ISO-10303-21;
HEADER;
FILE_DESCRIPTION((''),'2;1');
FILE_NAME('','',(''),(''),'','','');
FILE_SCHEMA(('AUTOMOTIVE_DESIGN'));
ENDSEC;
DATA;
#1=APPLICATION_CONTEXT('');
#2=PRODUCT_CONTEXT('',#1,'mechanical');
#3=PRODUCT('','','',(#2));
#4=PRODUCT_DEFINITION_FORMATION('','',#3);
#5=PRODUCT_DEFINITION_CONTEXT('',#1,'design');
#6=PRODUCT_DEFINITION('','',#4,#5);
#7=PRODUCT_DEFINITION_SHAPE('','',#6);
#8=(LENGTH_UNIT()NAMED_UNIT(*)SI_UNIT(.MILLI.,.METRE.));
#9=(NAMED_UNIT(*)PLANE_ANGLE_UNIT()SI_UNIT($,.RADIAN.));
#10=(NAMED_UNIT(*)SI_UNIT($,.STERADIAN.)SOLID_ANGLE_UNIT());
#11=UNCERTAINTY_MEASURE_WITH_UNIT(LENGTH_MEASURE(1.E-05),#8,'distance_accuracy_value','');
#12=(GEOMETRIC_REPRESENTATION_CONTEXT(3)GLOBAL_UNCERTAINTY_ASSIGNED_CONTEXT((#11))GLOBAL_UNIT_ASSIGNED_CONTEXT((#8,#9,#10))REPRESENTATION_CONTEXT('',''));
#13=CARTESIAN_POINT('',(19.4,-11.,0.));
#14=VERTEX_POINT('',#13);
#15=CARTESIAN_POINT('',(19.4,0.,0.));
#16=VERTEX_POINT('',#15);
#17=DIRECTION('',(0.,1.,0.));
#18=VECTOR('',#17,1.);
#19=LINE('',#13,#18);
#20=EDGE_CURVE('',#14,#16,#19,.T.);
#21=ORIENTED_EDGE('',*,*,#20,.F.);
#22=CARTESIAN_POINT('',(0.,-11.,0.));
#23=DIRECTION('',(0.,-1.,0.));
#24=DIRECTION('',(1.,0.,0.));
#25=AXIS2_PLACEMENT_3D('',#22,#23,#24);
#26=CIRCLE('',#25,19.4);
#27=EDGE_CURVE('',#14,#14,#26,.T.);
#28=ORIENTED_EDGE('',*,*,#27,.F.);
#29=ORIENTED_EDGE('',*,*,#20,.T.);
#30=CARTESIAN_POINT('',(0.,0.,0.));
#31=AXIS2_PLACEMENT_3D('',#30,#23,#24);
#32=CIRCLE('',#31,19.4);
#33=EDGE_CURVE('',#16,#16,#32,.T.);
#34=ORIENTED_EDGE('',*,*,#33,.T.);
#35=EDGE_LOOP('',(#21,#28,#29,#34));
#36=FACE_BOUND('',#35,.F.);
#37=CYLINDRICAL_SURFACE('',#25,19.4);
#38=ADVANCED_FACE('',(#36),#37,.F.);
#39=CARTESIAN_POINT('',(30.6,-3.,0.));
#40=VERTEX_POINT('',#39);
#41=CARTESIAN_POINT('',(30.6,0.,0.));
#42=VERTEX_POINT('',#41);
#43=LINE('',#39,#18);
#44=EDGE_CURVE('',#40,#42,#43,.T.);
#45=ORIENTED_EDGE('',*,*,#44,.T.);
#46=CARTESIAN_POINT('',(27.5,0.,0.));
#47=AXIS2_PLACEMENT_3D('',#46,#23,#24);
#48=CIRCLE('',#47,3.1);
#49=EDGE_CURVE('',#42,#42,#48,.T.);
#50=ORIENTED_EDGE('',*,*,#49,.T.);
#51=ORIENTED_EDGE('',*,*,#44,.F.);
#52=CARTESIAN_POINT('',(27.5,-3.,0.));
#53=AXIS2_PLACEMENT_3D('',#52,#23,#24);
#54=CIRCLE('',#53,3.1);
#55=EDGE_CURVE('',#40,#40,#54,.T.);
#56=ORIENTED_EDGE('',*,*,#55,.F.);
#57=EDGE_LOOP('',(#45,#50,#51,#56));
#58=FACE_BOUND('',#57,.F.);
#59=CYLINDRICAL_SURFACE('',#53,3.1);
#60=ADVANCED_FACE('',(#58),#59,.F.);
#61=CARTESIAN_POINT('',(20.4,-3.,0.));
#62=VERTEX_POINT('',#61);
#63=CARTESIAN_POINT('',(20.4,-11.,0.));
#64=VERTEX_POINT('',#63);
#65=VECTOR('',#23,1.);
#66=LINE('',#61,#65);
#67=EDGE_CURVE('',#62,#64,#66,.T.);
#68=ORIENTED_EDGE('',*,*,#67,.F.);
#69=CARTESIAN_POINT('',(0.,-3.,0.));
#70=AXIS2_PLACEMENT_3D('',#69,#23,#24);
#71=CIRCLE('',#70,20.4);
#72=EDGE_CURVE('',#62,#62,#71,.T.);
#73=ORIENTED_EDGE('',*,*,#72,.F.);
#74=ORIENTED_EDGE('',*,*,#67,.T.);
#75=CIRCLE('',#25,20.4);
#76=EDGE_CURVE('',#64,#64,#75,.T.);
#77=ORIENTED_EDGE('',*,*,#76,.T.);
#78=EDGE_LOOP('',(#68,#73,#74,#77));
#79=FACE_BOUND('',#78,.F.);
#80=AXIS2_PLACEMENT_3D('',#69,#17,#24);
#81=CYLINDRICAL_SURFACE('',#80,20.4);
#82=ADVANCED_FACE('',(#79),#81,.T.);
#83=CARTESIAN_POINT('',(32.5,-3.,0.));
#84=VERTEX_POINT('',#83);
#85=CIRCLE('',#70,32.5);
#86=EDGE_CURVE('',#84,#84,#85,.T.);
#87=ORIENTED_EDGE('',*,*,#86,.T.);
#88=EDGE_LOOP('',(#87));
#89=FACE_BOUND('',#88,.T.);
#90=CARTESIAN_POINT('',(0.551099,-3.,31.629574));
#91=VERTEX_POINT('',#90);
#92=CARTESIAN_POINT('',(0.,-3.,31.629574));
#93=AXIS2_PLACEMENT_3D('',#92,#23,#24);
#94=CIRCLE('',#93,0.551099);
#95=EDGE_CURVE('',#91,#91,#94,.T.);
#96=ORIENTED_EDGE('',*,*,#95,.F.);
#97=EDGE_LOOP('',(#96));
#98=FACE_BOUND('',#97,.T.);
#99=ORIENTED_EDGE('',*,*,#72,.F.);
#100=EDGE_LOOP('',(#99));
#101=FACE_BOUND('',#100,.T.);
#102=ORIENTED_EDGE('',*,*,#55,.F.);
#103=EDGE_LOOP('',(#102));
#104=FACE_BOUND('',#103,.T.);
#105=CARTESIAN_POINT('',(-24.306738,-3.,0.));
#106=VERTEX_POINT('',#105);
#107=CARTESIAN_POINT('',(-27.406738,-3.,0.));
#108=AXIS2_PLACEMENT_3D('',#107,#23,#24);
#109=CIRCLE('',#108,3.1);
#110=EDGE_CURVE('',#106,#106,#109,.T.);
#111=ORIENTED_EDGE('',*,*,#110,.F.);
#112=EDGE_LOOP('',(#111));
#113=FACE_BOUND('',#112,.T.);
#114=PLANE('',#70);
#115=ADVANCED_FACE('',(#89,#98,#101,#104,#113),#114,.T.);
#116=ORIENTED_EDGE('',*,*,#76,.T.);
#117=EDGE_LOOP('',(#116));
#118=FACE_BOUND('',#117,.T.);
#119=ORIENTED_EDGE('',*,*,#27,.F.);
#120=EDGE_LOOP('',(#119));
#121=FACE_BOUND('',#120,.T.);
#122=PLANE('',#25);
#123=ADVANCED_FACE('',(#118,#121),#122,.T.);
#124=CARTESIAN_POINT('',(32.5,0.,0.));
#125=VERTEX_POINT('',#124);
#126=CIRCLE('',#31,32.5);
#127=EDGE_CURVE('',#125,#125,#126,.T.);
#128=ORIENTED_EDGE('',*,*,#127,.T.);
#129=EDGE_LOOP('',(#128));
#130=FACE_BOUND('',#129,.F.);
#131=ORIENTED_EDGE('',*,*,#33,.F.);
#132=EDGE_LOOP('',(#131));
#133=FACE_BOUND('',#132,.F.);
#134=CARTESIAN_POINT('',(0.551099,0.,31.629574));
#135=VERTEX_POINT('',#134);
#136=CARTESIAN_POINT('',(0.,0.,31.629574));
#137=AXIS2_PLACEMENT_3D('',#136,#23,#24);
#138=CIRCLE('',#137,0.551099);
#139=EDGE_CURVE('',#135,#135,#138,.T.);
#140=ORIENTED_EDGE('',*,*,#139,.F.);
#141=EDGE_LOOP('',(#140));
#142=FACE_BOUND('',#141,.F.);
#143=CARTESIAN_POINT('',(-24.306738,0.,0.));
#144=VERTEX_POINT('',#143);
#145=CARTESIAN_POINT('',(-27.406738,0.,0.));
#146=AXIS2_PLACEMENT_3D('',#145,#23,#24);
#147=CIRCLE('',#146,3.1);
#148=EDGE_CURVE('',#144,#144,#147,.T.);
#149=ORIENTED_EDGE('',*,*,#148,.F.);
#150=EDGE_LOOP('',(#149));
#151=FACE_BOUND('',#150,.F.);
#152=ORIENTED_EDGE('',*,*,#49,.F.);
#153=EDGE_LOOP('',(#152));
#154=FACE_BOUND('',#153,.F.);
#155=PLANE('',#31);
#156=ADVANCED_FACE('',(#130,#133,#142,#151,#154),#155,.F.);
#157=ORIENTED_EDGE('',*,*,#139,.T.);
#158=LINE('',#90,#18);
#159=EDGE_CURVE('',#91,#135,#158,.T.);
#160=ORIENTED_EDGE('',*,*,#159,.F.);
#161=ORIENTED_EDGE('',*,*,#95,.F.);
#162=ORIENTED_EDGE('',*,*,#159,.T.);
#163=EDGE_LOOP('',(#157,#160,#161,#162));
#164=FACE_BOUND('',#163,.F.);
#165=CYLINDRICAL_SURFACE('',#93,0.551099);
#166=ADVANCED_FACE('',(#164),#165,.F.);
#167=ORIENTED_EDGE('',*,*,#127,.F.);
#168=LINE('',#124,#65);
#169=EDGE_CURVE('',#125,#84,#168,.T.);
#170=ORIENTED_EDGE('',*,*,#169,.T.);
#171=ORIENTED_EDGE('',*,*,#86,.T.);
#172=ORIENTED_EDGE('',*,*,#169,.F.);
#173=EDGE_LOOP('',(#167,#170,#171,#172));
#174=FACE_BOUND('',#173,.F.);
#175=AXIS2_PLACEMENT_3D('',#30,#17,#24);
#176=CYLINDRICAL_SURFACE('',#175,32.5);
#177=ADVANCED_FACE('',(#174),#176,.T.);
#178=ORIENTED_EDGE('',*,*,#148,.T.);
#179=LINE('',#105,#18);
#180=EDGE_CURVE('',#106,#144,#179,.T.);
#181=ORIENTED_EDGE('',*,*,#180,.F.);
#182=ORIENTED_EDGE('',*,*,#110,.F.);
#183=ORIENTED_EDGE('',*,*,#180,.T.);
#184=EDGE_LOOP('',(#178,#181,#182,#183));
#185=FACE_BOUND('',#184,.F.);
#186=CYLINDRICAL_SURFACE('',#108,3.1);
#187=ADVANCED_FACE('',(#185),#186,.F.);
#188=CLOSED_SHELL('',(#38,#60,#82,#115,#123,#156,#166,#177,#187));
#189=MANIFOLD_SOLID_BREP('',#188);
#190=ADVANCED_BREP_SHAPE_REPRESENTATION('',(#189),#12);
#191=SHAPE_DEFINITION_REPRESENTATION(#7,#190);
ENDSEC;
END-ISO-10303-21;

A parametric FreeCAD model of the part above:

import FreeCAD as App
import Part
import Sketcher
from FreeCAD import Vector

doc = App.newDocument("Part")
body = doc.addObject("PartDesign::Body", "Body")

# Sketch on XZ plane
sketch1 = doc.addObject("Sketcher::SketchObject", "Sketch")
body.addObject(sketch1)
sketch1.AttachmentSupport = (doc.XZ_Plane, [""])
sketch1.MapMode = "FlatFace"
sketch1.addGeometry(Part.Circle(Vector(0, 0, 0), Vector(0, 0, 1), 32), False)
sketch1.addConstraint(Sketcher.Constraint("Coincident", 0, 3, -1, 1))
sketch1.addConstraint(Sketcher.Constraint("Diameter", 0, 65.0))
pad1 = doc.addObject("PartDesign::Pad", "Pad")
body.addObject(pad1)
pad1.Profile = sketch1
pad1.Length = 3

# Sketch on XZ plane
sketch2 = doc.addObject("Sketcher::SketchObject", "Sketch001")
body.addObject(sketch2)
sketch2.AttachmentSupport = (doc.XZ_Plane, [""])
sketch2.MapMode = "FlatFace"
sketch2.AttachmentOffset = App.Placement(Vector(0, 0, 3), App.Rotation())
sketch2.addGeometry(Part.Circle(Vector(0, 0, 0), Vector(0, 0, 1), 20), False)
sketch2.addConstraint(Sketcher.Constraint("Coincident", 0, 3, -1, 1))
sketch2.addConstraint(Sketcher.Constraint("Diameter", 0, 40.8))
pad2 = doc.addObject("PartDesign::Pad", "Pad001")
body.addObject(pad2)
pad2.Profile = sketch2
pad2.Length = 8

# Sketch on XZ plane
sketch3 = doc.addObject("Sketcher::SketchObject", "Sketch002")
body.addObject(sketch3)
sketch3.AttachmentSupport = (doc.XZ_Plane, [""])
sketch3.MapMode = "FlatFace"
sketch3.AttachmentOffset = App.Placement(Vector(0, 0, 11), App.Rotation())
sketch3.addGeometry(Part.Circle(Vector(0, 0, 0), Vector(0, 0, 1), 19), False)
sketch3.addConstraint(Sketcher.Constraint("Coincident", 0, 3, -1, 1))
sketch3.addConstraint(Sketcher.Constraint("Diameter", 0, 38.8))
pocket1 = doc.addObject("PartDesign::Pocket", "Pocket")
body.addObject(pocket1)
pocket1.Profile = sketch3
pocket1.Type = "ThroughAll"

# Sketch on XZ plane
sketch4 = doc.addObject("Sketcher::SketchObject", "Sketch003")
body.addObject(sketch4)
sketch4.AttachmentSupport = (doc.XZ_Plane, [""])
sketch4.MapMode = "FlatFace"
sketch4.AttachmentOffset = App.Placement(Vector(0, 0, 3), App.Rotation())
sketch4.addGeometry(Part.Circle(Vector(27.5, 0, 0), Vector(0, 0, 1), 3.1), False)
sketch4.addGeometry(Part.Circle(Vector(-27.4, 0, 0), Vector(0, 0, 1), 3.1), False)
sketch4.addGeometry(Part.Circle(Vector(0, 31.6, 0), Vector(0, 0, 1), 0.6), False)
sketch4.addConstraint(Sketcher.Constraint("Equal", 0, 1))
sketch4.addConstraint(Sketcher.Constraint("PointOnObject", 0, 3, -1))
sketch4.addConstraint(Sketcher.Constraint("PointOnObject", 1, 3, -1))
sketch4.addConstraint(Sketcher.Constraint("PointOnObject", 2, 3, -2))
sketch4.addConstraint(Sketcher.Constraint("Diameter", 0, 6.2))
sketch4.addConstraint(Sketcher.Constraint("DistanceX", -1, 1, 0, 3, 27.5))
sketch4.addConstraint(Sketcher.Constraint("Diameter", 2, 1.102198))
sketch4.addConstraint(Sketcher.Constraint("DistanceX", 1, 3, -1, 1, 27.406738))
sketch4.addConstraint(Sketcher.Constraint("DistanceY", -1, 1, 2, 3, 31.629574))
pocket2 = doc.addObject("PartDesign::Pocket", "Pocket001")
body.addObject(pocket2)
pocket2.Profile = sketch4
pocket2.Type = "ThroughAll"

doc.recompute()
